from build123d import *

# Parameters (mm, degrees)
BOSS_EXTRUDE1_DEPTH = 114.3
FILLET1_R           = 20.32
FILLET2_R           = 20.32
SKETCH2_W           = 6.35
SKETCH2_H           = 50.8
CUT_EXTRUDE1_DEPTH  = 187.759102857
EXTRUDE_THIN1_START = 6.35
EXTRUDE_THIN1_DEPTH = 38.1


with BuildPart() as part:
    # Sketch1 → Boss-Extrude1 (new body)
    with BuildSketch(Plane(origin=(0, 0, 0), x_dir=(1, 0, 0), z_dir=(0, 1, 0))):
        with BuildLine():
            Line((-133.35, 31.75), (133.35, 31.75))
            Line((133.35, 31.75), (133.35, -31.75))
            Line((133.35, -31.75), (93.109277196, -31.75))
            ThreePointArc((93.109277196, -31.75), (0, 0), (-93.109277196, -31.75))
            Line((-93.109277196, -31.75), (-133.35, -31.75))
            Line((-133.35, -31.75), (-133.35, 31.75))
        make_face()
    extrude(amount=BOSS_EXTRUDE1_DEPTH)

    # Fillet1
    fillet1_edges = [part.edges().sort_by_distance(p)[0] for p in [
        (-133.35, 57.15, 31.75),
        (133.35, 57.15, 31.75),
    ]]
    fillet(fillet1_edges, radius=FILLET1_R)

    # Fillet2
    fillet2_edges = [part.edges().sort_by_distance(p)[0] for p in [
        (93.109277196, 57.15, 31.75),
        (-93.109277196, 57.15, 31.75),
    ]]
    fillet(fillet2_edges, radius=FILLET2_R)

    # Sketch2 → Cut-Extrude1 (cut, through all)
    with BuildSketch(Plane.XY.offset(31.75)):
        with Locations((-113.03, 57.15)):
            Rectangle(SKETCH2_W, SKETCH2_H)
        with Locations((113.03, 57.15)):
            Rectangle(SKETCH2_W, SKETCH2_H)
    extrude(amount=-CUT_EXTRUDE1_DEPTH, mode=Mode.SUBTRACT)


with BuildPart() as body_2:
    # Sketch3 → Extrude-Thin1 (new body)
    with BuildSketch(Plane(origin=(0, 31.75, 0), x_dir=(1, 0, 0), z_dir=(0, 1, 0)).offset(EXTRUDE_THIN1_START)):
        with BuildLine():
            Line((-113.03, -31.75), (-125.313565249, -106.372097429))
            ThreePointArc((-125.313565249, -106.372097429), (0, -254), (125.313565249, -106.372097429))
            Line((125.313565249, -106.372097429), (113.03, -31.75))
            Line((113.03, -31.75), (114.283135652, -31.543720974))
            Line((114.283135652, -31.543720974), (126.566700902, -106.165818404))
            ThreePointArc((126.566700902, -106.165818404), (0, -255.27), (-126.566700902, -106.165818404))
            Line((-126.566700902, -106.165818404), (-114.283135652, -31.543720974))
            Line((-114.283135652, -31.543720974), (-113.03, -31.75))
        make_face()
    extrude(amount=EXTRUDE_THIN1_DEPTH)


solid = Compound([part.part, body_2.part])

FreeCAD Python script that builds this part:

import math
import FreeCAD as App
import Part
import Sketcher

V = App.Vector
Q = App.Units.Quantity


def edges_at(feature, points):
    """Names of the edges that pass closest to the given points."""
    edges = feature.Shape.Edges
    near = lambda p: min(range(len(edges)), key=lambda i: edges[i].distToShape(Part.Vertex(*p))[0])
    return sorted({f"Edge{near(p) + 1}" for p in points})

doc = App.newDocument("Part")
params = doc.addObject("Spreadsheet::Sheet", "Params")
for row, (alias, value) in enumerate([
    ("sketch1_radius", "6 in"),
    ("sketch1_width", "10.5 in"),
    ("sketch1_height", "2.5 in"),
    ("pad1_length", "4.5 in"),
    ("fillet_radius", "0.8 in"),
    ("fillet2_radius", "0.8 in"),
    ("sketch2_height", "2 in"),
    ("sketch2_width", "0.25 in"),
    ("sketch3_radius", "5 in"),
    ("sketch3_radius2", "5.05 in"),
    ("pad2_length", "1.5 in"),
], start=1):
    params.set(f"A{row}", alias)
    params.set(f"B{row}", "=" + value)
    params.setAlias(f"B{row}", alias)

body = doc.addObject("PartDesign::Body", "Body")

sketch1 = body.newObject("Sketcher::SketchObject", "Sketch")
sketch1.AttachmentSupport = (doc.getObject("XZ_Plane"), [""])
sketch1.MapMode = "FlatFace"
sketch1.addGeometry([
    Part.LineSegment(V(133, -32, 0), V(-133, -32, 0)),
    Part.LineSegment(V(-133, -32, 0), V(-133, 32, 0)),
    Part.LineSegment(V(-133, 32, 0), V(-93, 32, 0)),
    Part.ArcOfCircle(Part.Circle(V(0, 152, 0), V(0, 0, 1), 152), math.radians(-128), math.radians(-52)),
    Part.LineSegment(V(93, 32, 0), V(133, 32, 0)),
    Part.LineSegment(V(133, 32, 0), V(133, -32, 0)),
], False)
sketch1.addConstraint([
    Sketcher.Constraint("Coincident", 0, 2, 1, 1),
    Sketcher.Constraint("Coincident", 1, 2, 2, 1),
    Sketcher.Constraint("Coincident", 2, 2, 3, 1),
    Sketcher.Constraint("Coincident", 3, 2, 4, 1),
    Sketcher.Constraint("Coincident", 4, 2, 5, 1),
    Sketcher.Constraint("Coincident", 5, 2, 0, 1),
    Sketcher.Constraint("Horizontal", 0),
    Sketcher.Constraint("Vertical", 1),
    Sketcher.Constraint("Horizontal", 2),
    Sketcher.Constraint("Horizontal", 4),
    Sketcher.Constraint("Vertical", 5),
    Sketcher.Constraint("Symmetric", 0, 2, 4, 2, -1, 1),
    Sketcher.Constraint("Symmetric", 2, 2, 3, 2, -2),
    Sketcher.Constraint("Radius", 3, Q("6 in")),
    Sketcher.Constraint("DistanceX", 0, 2, 0, 1, Q("10.5 in")),
    Sketcher.Constraint("DistanceY", 1, 1, 1, 2, Q("2.5 in")),
    Sketcher.Constraint("DistanceY", -1, 1, 3, 3, Q("6 in")),
])
sketch1.setExpression("Constraints[13]", "Params.sketch1_radius")
sketch1.setExpression("Constraints[14]", "Params.sketch1_width")
sketch1.setExpression("Constraints[15]", "Params.sketch1_height")
pad1 = body.newObject("PartDesign::Pad", "Pad")
pad1.Profile = sketch1
pad1.setExpression("Length", "Params.pad1_length")
pad1.Reversed = True
doc.recompute()

fillet = body.newObject("PartDesign::Fillet", "Fillet")
fillet.Base = (pad1, edges_at(pad1, [(-133.35, 57.15, 31.75), (133.35, 57.15, 31.75)]))
fillet.setExpression("Radius", "Params.fillet_radius")
doc.recompute()

fillet2 = body.newObject("PartDesign::Fillet", "Fillet001")
fillet2.Base = (fillet, edges_at(fillet, [(93.109, 57.15, 31.75), (-93.109, 57.15, 31.75)]))
fillet2.setExpression("Radius", "Params.fillet2_radius")

sketch2 = body.newObject("Sketcher::SketchObject", "Sketch001")
sketch2.AttachmentSupport = (doc.getObject("XY_Plane"), [""])
sketch2.MapMode = "FlatFace"
sketch2.AttachmentOffset = App.Placement(V(0, 0, 1.25 * 25.4), App.Rotation())
sketch2.addGeometry([
    Part.LineSegment(V(-116, 83, 0), V(-116, 32, 0)),
    Part.LineSegment(V(-116, 32, 0), V(-110, 32, 0)),
    Part.LineSegment(V(-110, 32, 0), V(-110, 83, 0)),
    Part.LineSegment(V(-110, 83, 0), V(-116, 83, 0)),
    Part.LineSegment(V(110, 83, 0), V(110, 32, 0)),
    Part.LineSegment(V(110, 32, 0), V(116, 32, 0)),
    Part.LineSegment(V(116, 32, 0), V(116, 83, 0)),
    Part.LineSegment(V(116, 83, 0), V(110, 83, 0)),
], False)
sketch2.addConstraint([
    Sketcher.Constraint("Coincident", 0, 2, 1, 1),
    Sketcher.Constraint("Coincident", 1, 2, 2, 1),
    Sketcher.Constraint("Coincident", 2, 2, 3, 1),
    Sketcher.Constraint("Coincident", 3, 2, 0, 1),
    Sketcher.Constraint("Coincident", 4, 2, 5, 1),
    Sketcher.Constraint("Coincident", 5, 2, 6, 1),
    Sketcher.Constraint("Coincident", 6, 2, 7, 1),
    Sketcher.Constraint("Coincident", 7, 2, 4, 1),
    Sketcher.Constraint("Vertical", 0),
    Sketcher.Constraint("Horizontal", 1),
    Sketcher.Constraint("Vertical", 2),
    Sketcher.Constraint("Horizontal", 3),
    Sketcher.Constraint("Vertical", 4),
    Sketcher.Constraint("Horizontal", 5),
    Sketcher.Constraint("Vertical", 6),
    Sketcher.Constraint("Horizontal", 7),
    Sketcher.Constraint("Symmetric", 1, 2, 4, 2, -2),
    Sketcher.Constraint("Symmetric", 3, 2, 6, 2, -2),
    Sketcher.Constraint("DistanceY", 0, 2, 0, 1, Q("2 in")),
    Sketcher.Constraint("DistanceX", 1, 1, 1, 2, Q("0.25 in")),
    Sketcher.Constraint("DistanceX", 0, 2, 4, 2, Q("8.9 in")),
    Sketcher.Constraint("DistanceY", -1, 1, 0, 2, Q("1.25 in")),
])
sketch2.setExpression("Constraints[18]", "Params.sketch2_height")
sketch2.setExpression("Constraints[19]", "Params.sketch2_width")
pocket1 = body.newObject("PartDesign::Pocket", "Pocket")
pocket1.Profile = sketch2
pocket1.Type = "ThroughAll"
body2 = doc.addObject("PartDesign::Body", "Body001")

sketch3 = body2.newObject("Sketcher::SketchObject", "Sketch002")
sketch3.AttachmentSupport = (doc.getObject("XZ_Plane001"), [""])
sketch3.MapMode = "FlatFace"
sketch3.AttachmentOffset = App.Placement(V(0, 0, -1.5 * 25.4), App.Rotation())
sketch3.addGeometry([
    Part.LineSegment(V(-125.3, 106.4, 0), V(-113, 31.8, 0)),
    Part.LineSegment(V(-113, 31.8, 0), V(-114.3, 31.5, 0)),
    Part.LineSegment(V(-114.3, 31.5, 0), V(-126.6, 106.2, 0)),
    Part.ArcOfCircle(Part.Circle(V(0, 127, 0), V(0, 0, 1), 128.3), math.radians(-9), math.radians(189)),
    Part.LineSegment(V(126.6, 106.2, 0), V(114.3, 31.5, 0)),
    Part.LineSegment(V(114.3, 31.5, 0), V(113, 31.8, 0)),
    Part.LineSegment(V(113, 31.8, 0), V(125.3, 106.4, 0)),
    Part.ArcOfCircle(Part.Circle(V(0, 127, 0), V(0, 0, 1), 127), math.radians(-9), math.radians(189)),
], False)
sketch3.addConstraint([
    Sketcher.Constraint("Coincident", 0, 2, 1, 1),
    Sketcher.Constraint("Coincident", 1, 2, 2, 1),
    Sketcher.Constraint("Tangent", 2, 2, 3, 2),
    Sketcher.Constraint("Tangent", 3, 1, 4, 1),
    Sketcher.Constraint("Coincident", 4, 2, 5, 1),
    Sketcher.Constraint("Coincident", 5, 2, 6, 1),
    Sketcher.Constraint("Tangent", 6, 2, 7, 1),
    Sketcher.Constraint("Tangent", 7, 2, 0, 1),
    Sketcher.Constraint("Coincident", 7, 3, 3, 3),
    Sketcher.Constraint("Symmetric", 2, 2, 3, 1, -2),
    Sketcher.Constraint("Symmetric", 0, 2, 5, 2, -2),
    Sketcher.Constraint("Perpendicular", 0, 1),
    Sketcher.Constraint("Perpendicular", 1, 2),
    Sketcher.Constraint("Perpendicular", 4, 5),
    Sketcher.Constraint("Radius", 7, Q("5 in")),
    Sketcher.Constraint("Radius", 3, Q("5.05 in")),
    Sketcher.Constraint("DistanceY", -1, 1, 3, 3, Q("5 in")),
    Sketcher.Constraint("DistanceX", 0, 2, 5, 2, Q("8.9 in")),
    Sketcher.Constraint("DistanceY", -1, 1, 0, 2, Q("1.25 in")),
])
sketch3.setExpression("Constraints[14]", "Params.sketch3_radius")
sketch3.setExpression("Constraints[15]", "Params.sketch3_radius2")
pad2 = body2.newObject("PartDesign::Pad", "Pad001")
pad2.Profile = sketch3
pad2.setExpression("Length", "Params.pad2_length")
pad2.Reversed = True

doc.recompute()
